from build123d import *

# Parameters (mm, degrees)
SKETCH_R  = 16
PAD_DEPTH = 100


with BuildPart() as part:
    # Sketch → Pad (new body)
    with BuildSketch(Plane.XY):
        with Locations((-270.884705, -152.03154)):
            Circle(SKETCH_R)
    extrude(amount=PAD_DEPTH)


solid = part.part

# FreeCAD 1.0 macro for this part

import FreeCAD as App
import Part
import Sketcher

V = App.Vector

doc = App.newDocument("Part")
body = doc.addObject("PartDesign::Body", "Body")

# Sketch on XY plane
sketch1 = doc.addObject("Sketcher::SketchObject", "Sketch")
body.addObject(sketch1)
sketch1.AttachmentSupport = (doc.XY_Plane, [""])
sketch1.MapMode = "FlatFace"
sketch1.addGeometry(Part.Circle(V(-271, -152, 0), V(0, 0, 1), 16), False)
sketch1.addConstraint(Sketcher.Constraint("Diameter", 0, 32.0))
sketch1.addConstraint(Sketcher.Constraint("DistanceY", 0, 3, -1, 1, 152.03154))
sketch1.addConstraint(Sketcher.Constraint("DistanceX", 0, 3, -1, 1, 270.884705))
pad1 = doc.addObject("PartDesign::Pad", "Pad")
body.addObject(pad1)
pad1.Profile = sketch1
pad1.Length = 100

doc.recompute()
